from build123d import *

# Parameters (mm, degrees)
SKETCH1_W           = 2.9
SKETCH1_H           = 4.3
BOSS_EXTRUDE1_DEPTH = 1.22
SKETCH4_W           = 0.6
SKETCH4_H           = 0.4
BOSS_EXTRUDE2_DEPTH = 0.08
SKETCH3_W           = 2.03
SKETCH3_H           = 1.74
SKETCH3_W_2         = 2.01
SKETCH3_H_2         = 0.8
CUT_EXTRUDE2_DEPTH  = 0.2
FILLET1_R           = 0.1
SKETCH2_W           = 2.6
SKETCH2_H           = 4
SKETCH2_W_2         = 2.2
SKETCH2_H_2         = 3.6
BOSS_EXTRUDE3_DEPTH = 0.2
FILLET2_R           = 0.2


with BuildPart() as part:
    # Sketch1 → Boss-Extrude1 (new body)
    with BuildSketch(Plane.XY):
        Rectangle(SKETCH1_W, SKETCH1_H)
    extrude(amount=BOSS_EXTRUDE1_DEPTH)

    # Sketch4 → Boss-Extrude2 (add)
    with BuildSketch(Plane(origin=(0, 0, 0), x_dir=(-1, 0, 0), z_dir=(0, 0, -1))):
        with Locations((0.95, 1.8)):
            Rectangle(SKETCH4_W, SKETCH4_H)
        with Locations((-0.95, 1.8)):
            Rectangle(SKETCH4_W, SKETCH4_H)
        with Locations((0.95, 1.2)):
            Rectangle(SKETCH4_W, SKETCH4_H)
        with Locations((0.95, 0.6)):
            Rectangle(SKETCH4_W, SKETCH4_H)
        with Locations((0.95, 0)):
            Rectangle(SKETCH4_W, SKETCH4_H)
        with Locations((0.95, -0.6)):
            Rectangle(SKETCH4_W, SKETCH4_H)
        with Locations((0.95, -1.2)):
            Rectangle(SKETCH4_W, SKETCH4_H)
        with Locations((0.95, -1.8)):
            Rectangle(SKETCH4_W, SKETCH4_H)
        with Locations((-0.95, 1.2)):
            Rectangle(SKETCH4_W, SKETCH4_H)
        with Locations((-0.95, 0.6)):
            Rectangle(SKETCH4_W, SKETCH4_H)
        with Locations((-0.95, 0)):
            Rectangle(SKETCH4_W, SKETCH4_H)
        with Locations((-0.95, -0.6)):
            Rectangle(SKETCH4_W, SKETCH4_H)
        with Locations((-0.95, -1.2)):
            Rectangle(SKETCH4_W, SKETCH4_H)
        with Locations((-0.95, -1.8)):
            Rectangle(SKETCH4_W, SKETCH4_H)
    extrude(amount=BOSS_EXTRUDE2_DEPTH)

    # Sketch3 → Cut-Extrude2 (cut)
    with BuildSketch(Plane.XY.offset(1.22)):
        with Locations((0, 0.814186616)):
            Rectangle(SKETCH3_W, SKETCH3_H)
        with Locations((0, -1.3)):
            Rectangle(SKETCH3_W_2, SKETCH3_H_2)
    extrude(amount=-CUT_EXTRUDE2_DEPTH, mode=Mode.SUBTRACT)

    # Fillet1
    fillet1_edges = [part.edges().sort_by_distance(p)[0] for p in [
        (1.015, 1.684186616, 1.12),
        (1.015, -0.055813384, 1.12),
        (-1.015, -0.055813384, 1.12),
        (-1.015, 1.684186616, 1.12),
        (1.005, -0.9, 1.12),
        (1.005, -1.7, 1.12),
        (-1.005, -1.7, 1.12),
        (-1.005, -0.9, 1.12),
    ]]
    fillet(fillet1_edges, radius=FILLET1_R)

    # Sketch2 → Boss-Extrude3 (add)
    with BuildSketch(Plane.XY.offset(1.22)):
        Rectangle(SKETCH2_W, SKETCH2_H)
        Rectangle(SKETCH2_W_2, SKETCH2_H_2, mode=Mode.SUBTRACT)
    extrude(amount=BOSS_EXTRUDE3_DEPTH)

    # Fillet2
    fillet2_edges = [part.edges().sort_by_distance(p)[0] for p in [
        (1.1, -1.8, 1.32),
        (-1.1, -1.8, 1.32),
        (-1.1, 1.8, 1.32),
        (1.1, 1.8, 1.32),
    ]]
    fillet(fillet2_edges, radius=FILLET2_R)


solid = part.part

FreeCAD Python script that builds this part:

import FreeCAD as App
import Part
import Sketcher

V = App.Vector
Q = App.Units.Quantity


def edges_at(feature, points):
    """Names of the edges that pass closest to the given points."""
    edges = feature.Shape.Edges
    near = lambda p: min(range(len(edges)), key=lambda i: edges[i].distToShape(Part.Vertex(*p))[0])
    return sorted({f"Edge{near(p) + 1}" for p in points})

doc = App.newDocument("Part")
body = doc.addObject("PartDesign::Body", "Body")

sketch1 = body.newObject("Sketcher::SketchObject", "Sketch")
sketch1.AttachmentSupport = (doc.getObject("XY_Plane"), [""])
sketch1.MapMode = "FlatFace"
sketch1.addGeometry([
    Part.LineSegment(V(-1.45, 2.15, 0), V(-1.45, -2.15, 0)),
    Part.LineSegment(V(-1.45, -2.15, 0), V(1.45, -2.15, 0)),
    Part.LineSegment(V(1.45, -2.15, 0), V(1.45, 2.15, 0)),
    Part.LineSegment(V(1.45, 2.15, 0), V(-1.45, 2.15, 0)),
], False)
sketch1.addConstraint([
    Sketcher.Constraint("Coincident", 0, 2, 1, 1),
    Sketcher.Constraint("Coincident", 1, 2, 2, 1),
    Sketcher.Constraint("Coincident", 2, 2, 3, 1),
    Sketcher.Constraint("Coincident", 3, 2, 0, 1),
    Sketcher.Constraint("Vertical", 0),
    Sketcher.Constraint("Horizontal", 1),
    Sketcher.Constraint("Vertical", 2),
    Sketcher.Constraint("Horizontal", 3),
    Sketcher.Constraint("Symmetric", 0, 2, 2, 2, -1, 1),
    Sketcher.Constraint("DistanceX", 1, 1, 1, 2, Q("2.9 mm")),
    Sketcher.Constraint("DistanceY", 0, 2, 0, 1, Q("4.3 mm")),
])
pad1 = body.newObject("PartDesign::Pad", "Pad")
pad1.Profile = sketch1
pad1.Length = 1.22

sketch2 = body.newObject("Sketcher::SketchObject", "Sketch001")
sketch2.AttachmentSupport = (doc.getObject("XY_Plane"), [""])
sketch2.MapMode = "FlatFace"
sketch2.addGeometry([
    Part.LineSegment(V(-0.65, 2, 0), V(-0.65, 1.6, 0)),
    Part.LineSegment(V(-0.65, 1.6, 0), V(-1.25, 1.6, 0)),
    Part.LineSegment(V(-1.25, 1.6, 0), V(-1.25, 2, 0)),
    Part.LineSegment(V(-1.25, 2, 0), V(-0.65, 2, 0)),
    Part.LineSegment(V(1.25, 2, 0), V(1.25, 1.6, 0)),
    Part.LineSegment(V(1.25, 1.6, 0), V(0.65, 1.6, 0)),
    Part.LineSegment(V(0.65, 1.6, 0), V(0.65, 2, 0)),
    Part.LineSegment(V(0.65, 2, 0), V(1.25, 2, 0)),
    Part.LineSegment(V(-0.65, 1.4, 0), V(-0.65, 1, 0)),
    Part.LineSegment(V(-0.65, 1, 0), V(-1.25, 1, 0)),
    Part.LineSegment(V(-1.25, 1, 0), V(-1.25, 1.4, 0)),
    Part.LineSegment(V(-1.25, 1.4, 0), V(-0.65, 1.4, 0)),
    Part.LineSegment(V(-0.65, 0.8, 0), V(-0.65, 0.4, 0)),
    Part.LineSegment(V(-0.65, 0.4, 0), V(-1.25, 0.4, 0)),
    Part.LineSegment(V(-1.25, 0.4, 0), V(-1.25, 0.8, 0)),
    Part.LineSegment(V(-1.25, 0.8, 0), V(-0.65, 0.8, 0)),
    Part.LineSegment(V(-0.65, 0.2, 0), V(-0.65, -0.2, 0)),
    Part.LineSegment(V(-0.65, -0.2, 0), V(-1.25, -0.2, 0)),
    Part.LineSegment(V(-1.25, -0.2, 0), V(-1.25, 0.2, 0)),
    Part.LineSegment(V(-1.25, 0.2, 0), V(-0.65, 0.2, 0)),
    Part.LineSegment(V(-0.65, -0.4, 0), V(-0.65, -0.8, 0)),
    Part.LineSegment(V(-0.65, -0.8, 0), V(-1.25, -0.8, 0)),
    Part.LineSegment(V(-1.25, -0.8, 0), V(-1.25, -0.4, 0)),
    Part.LineSegment(V(-1.25, -0.4, 0), V(-0.65, -0.4, 0)),
    Part.LineSegment(V(-0.65, -1, 0), V(-0.65, -1.4, 0)),
    Part.LineSegment(V(-0.65, -1.4, 0), V(-1.25, -1.4, 0)),
    Part.LineSegment(V(-1.25, -1.4, 0), V(-1.25, -1, 0)),
    Part.LineSegment(V(-1.25, -1, 0), V(-0.65, -1, 0)),
    Part.LineSegment(V(-0.65, -1.6, 0), V(-0.65, -2, 0)),
    Part.LineSegment(V(-0.65, -2, 0), V(-1.25, -2, 0)),
    Part.LineSegment(V(-1.25, -2, 0), V(-1.25, -1.6, 0)),
    Part.LineSegment(V(-1.25, -1.6, 0), V(-0.65, -1.6, 0)),
    Part.LineSegment(V(1.25, 1.4, 0), V(1.25, 1, 0)),
    Part.LineSegment(V(1.25, 1, 0), V(0.65, 1, 0)),
    Part.LineSegment(V(0.65, 1, 0), V(0.65, 1.4, 0)),
    Part.LineSegment(V(0.65, 1.4, 0), V(1.25, 1.4, 0)),
    Part.LineSegment(V(1.25, 0.8, 0), V(1.25, 0.4, 0)),
    Part.LineSegment(V(1.25, 0.4, 0), V(0.65, 0.4, 0)),
    Part.LineSegment(V(0.65, 0.4, 0), V(0.65, 0.8, 0)),
    Part.LineSegment(V(0.65, 0.8, 0), V(1.25, 0.8, 0)),
    Part.LineSegment(V(1.25, 0.2, 0), V(1.25, -0.2, 0)),
    Part.LineSegment(V(1.25, -0.2, 0), V(0.65, -0.2, 0)),
    Part.LineSegment(V(0.65, -0.2, 0), V(0.65, 0.2, 0)),
    Part.LineSegment(V(0.65, 0.2, 0), V(1.25, 0.2, 0)),
    Part.LineSegment(V(1.25, -0.4, 0), V(1.25, -0.8, 0)),
    Part.LineSegment(V(1.25, -0.8, 0), V(0.65, -0.8, 0)),
    Part.LineSegment(V(0.65, -0.8, 0), V(0.65, -0.4, 0)),
    Part.LineSegment(V(0.65, -0.4, 0), V(1.25, -0.4, 0)),
    Part.LineSegment(V(1.25, -1, 0), V(1.25, -1.4, 0)),
    Part.LineSegment(V(1.25, -1.4, 0), V(0.65, -1.4, 0)),
    Part.LineSegment(V(0.65, -1.4, 0), V(0.65, -1, 0)),
    Part.LineSegment(V(0.65, -1, 0), V(1.25, -1, 0)),
    Part.LineSegment(V(1.25, -1.6, 0), V(1.25, -2, 0)),
    Part.LineSegment(V(1.25, -2, 0), V(0.65, -2, 0)),
    Part.LineSegment(V(0.65, -2, 0), V(0.65, -1.6, 0)),
    Part.LineSegment(V(0.65, -1.6, 0), V(1.25, -1.6, 0)),
], False)
sketch2.addConstraint([
    Sketcher.Constraint("Coincident", 0, 2, 1, 1),
    Sketcher.Constraint("Coincident", 1, 2, 2, 1),
    Sketcher.Constraint("Coincident", 2, 2, 3, 1),
    Sketcher.Constraint("Coincident", 3, 2, 0, 1),
    Sketcher.Constraint("Coincident", 4, 2, 5, 1),
    Sketcher.Constraint("Coincident", 5, 2, 6, 1),
    Sketcher.Constraint("Coincident", 6, 2, 7, 1),
    Sketcher.Constraint("Coincident", 7, 2, 4, 1),
    Sketcher.Constraint("Coincident", 8, 2, 9, 1),
    Sketcher.Constraint("Coincident", 9, 2, 10, 1),
    Sketcher.Constraint("Coincident", 10, 2, 11, 1),
    Sketcher.Constraint("Coincident", 11, 2, 8, 1),
    Sketcher.Constraint("Coincident", 12, 2, 13, 1),
    Sketcher.Constraint("Coincident", 13, 2, 14, 1),
    Sketcher.Constraint("Coincident", 14, 2, 15, 1),
    Sketcher.Constraint("Coincident", 15, 2, 12, 1),
    Sketcher.Constraint("Coincident", 16, 2, 17, 1),
    Sketcher.Constraint("Coincident", 17, 2, 18, 1),
    Sketcher.Constraint("Coincident", 18, 2, 19, 1),
    Sketcher.Constraint("Coincident", 19, 2, 16, 1),
    Sketcher.Constraint("Coincident", 20, 2, 21, 1),
    Sketcher.Constraint("Coincident", 21, 2, 22, 1),
    Sketcher.Constraint("Coincident", 22, 2, 23, 1),
    Sketcher.Constraint("Coincident", 23, 2, 20, 1),
    Sketcher.Constraint("Coincident", 24, 2, 25, 1),
    Sketcher.Constraint("Coincident", 25, 2, 26, 1),
    Sketcher.Constraint("Coincident", 26, 2, 27, 1),
    Sketcher.Constraint("Coincident", 27, 2, 24, 1),
    Sketcher.Constraint("Coincident", 28, 2, 29, 1),
    Sketcher.Constraint("Coincident", 29, 2, 30, 1),
    Sketcher.Constraint("Coincident", 30, 2, 31, 1),
    Sketcher.Constraint("Coincident", 31, 2, 28, 1),
    Sketcher.Constraint("Coincident", 32, 2, 33, 1),
    Sketcher.Constraint("Coincident", 33, 2, 34, 1),
    Sketcher.Constraint("Coincident", 34, 2, 35, 1),
    Sketcher.Constraint("Coincident", 35, 2, 32, 1),
    Sketcher.Constraint("Coincident", 36, 2, 37, 1),
    Sketcher.Constraint("Coincident", 37, 2, 38, 1),
    Sketcher.Constraint("Coincident", 38, 2, 39, 1),
    Sketcher.Constraint("Coincident", 39, 2, 36, 1),
    Sketcher.Constraint("Coincident", 40, 2, 41, 1),
    Sketcher.Constraint("Coincident", 41, 2, 42, 1),
    Sketcher.Constraint("Coincident", 42, 2, 43, 1),
    Sketcher.Constraint("Coincident", 43, 2, 40, 1),
    Sketcher.Constraint("Coincident", 44, 2, 45, 1),
    Sketcher.Constraint("Coincident", 45, 2, 46, 1),
    Sketcher.Constraint("Coincident", 46, 2, 47, 1),
    Sketcher.Constraint("Coincident", 47, 2, 44, 1),
    Sketcher.Constraint("Coincident", 48, 2, 49, 1),
    Sketcher.Constraint("Coincident", 49, 2, 50, 1),
    Sketcher.Constraint("Coincident", 50, 2, 51, 1),
    Sketcher.Constraint("Coincident", 51, 2, 48, 1),
    Sketcher.Constraint("Coincident", 52, 2, 53, 1),
    Sketcher.Constraint("Coincident", 53, 2, 54, 1),
    Sketcher.Constraint("Coincident", 54, 2, 55, 1),
    Sketcher.Constraint("Coincident", 55, 2, 52, 1),
    Sketcher.Constraint("Vertical", 0),
    Sketcher.Constraint("Horizontal", 1),
    Sketcher.Constraint("Vertical", 2),
    Sketcher.Constraint("Horizontal", 3),
    Sketcher.Constraint("Vertical", 4),
    Sketcher.Constraint("Horizontal", 5),
    Sketcher.Constraint("Vertical", 6),
    Sketcher.Constraint("Horizontal", 7),
    Sketcher.Constraint("Vertical", 8),
    Sketcher.Constraint("Horizontal", 9),
    Sketcher.Constraint("Vertical", 10),
    Sketcher.Constraint("Horizontal", 11),
    Sketcher.Constraint("Vertical", 12),
    Sketcher.Constraint("Horizontal", 13),
    Sketcher.Constraint("Vertical", 14),
    Sketcher.Constraint("Horizontal", 15),
    Sketcher.Constraint("Vertical", 16),
    Sketcher.Constraint("Horizontal", 17),
    Sketcher.Constraint("Vertical", 18),
    Sketcher.Constraint("Horizontal", 19),
    Sketcher.Constraint("Vertical", 20),
    Sketcher.Constraint("Horizontal", 21),
    Sketcher.Constraint("Vertical", 22),
    Sketcher.Constraint("Horizontal", 23),
    Sketcher.Constraint("Vertical", 24),
    Sketcher.Constraint("Horizontal", 25),
    Sketcher.Constraint("Vertical", 26),
    Sketcher.Constraint("Horizontal", 27),
    Sketcher.Constraint("Vertical", 28),
    Sketcher.Constraint("Horizontal", 29),
    Sketcher.Constraint("Vertical", 30),
    Sketcher.Constraint("Horizontal", 31),
    Sketcher.Constraint("Vertical", 32),
    Sketcher.Constraint("Horizontal", 33),
    Sketcher.Constraint("Vertical", 34),
    Sketcher.Constraint("Horizontal", 35),
    Sketcher.Constraint("Vertical", 36),
    Sketcher.Constraint("Horizontal", 37),
    Sketcher.Constraint("Vertical", 38),
    Sketcher.Constraint("Horizontal", 39),
    Sketcher.Constraint("Vertical", 40),
    Sketcher.Constraint("Horizontal", 41),
    Sketcher.Constraint("Vertical", 42),
    Sketcher.Constraint("Horizontal", 43),
    Sketcher.Constraint("Vertical", 44),
    Sketcher.Constraint("Horizontal", 45),
    Sketcher.Constraint("Vertical", 46),
    Sketcher.Constraint("Horizontal", 47),
    Sketcher.Constraint("Vertical", 48),
    Sketcher.Constraint("Horizontal", 49),
    Sketcher.Constraint("Vertical", 50),
    Sketcher.Constraint("Horizontal", 51),
    Sketcher.Constraint("Vertical", 52),
    Sketcher.Constraint("Horizontal", 53),
    Sketcher.Constraint("Vertical", 54),
    Sketcher.Constraint("Horizontal", 55),
    Sketcher.Constraint("Symmetric", 6, 2, 28, 2, -1, 1),
    Sketcher.Constraint("Symmetric", 4, 2, 30, 2, -1, 1),
    Sketcher.Constraint("Symmetric", 26, 2, 32, 2, -1, 1),
    Sketcher.Constraint("Symmetric", 24, 2, 34, 2, -1, 1),
    Sketcher.Constraint("Symmetric", 22, 2, 36, 2, -1, 1),
    Sketcher.Constraint("Symmetric", 20, 2, 38, 2, -1, 1),
    Sketcher.Constraint("Symmetric", 18, 2, 40, 2, -1, 1),
    Sketcher.Constraint("Symmetric", 16, 2, 42, 2, -1, 1),
    Sketcher.Constraint("Symmetric", 14, 2, 44, 2, -1, 1),
    Sketcher.Constraint("Symmetric", 12, 2, 46, 2, -1, 1),
    Sketcher.Constraint("Symmetric", 10, 2, 48, 2, -1, 1),
    Sketcher.Constraint("Symmetric", 8, 2, 50, 2, -1, 1),
    Sketcher.Constraint("Symmetric", 2, 2, 52, 2, -1, 1),
    Sketcher.Constraint("Symmetric", 0, 2, 54, 2, -1, 1),
    Sketcher.Constraint("Symmetric", 1, 2, 4, 2, -2),
    Sketcher.Constraint("Symmetric", 3, 2, 6, 2, -2),
    Sketcher.Constraint("Symmetric", 9, 2, 32, 2, -2),
    Sketcher.Constraint("Symmetric", 11, 2, 34, 2, -2),
    Sketcher.Constraint("Symmetric", 13, 2, 36, 2, -2),
    Sketcher.Constraint("Symmetric", 15, 2, 38, 2, -2),
    Sketcher.Constraint("Horizontal", 17, 2, 40, 2),
    Sketcher.Constraint("Vertical", 3, 2, 8, 2),
    Sketcher.Constraint("Vertical", 2, 2, 9, 2),
    Sketcher.Constraint("Vertical", 11, 2, 12, 2),
    Sketcher.Constraint("Vertical", 10, 2, 13, 2),
    Sketcher.Constraint("Vertical", 15, 2, 16, 2),
    Sketcher.Constraint("Vertical", 14, 2, 17, 2),
    Sketcher.Constraint("Equal", 6, 8),
    Sketcher.Constraint("Equal", 10, 12),
    Sketcher.Constraint("Equal", 14, 16),
    Sketcher.Constraint("DistanceX", 1, 2, 1, 1, Q("0.6 mm")),
    Sketcher.Constraint("DistanceY", 0, 2, 0, 1, Q("0.4 mm")),
    Sketcher.Constraint("DistanceY", -1, 1, 2, 2, Q("2 mm")),
    Sketcher.Constraint("DistanceY", -1, 1, 8, 2, Q("1 mm")),
    Sketcher.Constraint("DistanceY", 12, 2, 11, 2, Q("1 mm")),
    Sketcher.Constraint("DistanceX", 0, 2, 4, 2, Q("1.9 mm")),
])
pad2 = body.newObject("PartDesign::Pad", "Pad001")
pad2.Profile = sketch2
pad2.Length = 0.08
pad2.Reversed = True

sketch3 = body.newObject("Sketcher::SketchObject", "Sketch002")
sketch3.AttachmentSupport = (doc.getObject("XY_Plane"), [""])
sketch3.MapMode = "FlatFace"
sketch3.AttachmentOffset = App.Placement(V(0, 0, 1.22), App.Rotation())
sketch3.addGeometry([
    Part.LineSegment(V(-1.015, 1.684187, 0), V(-1.015, -0.055813, 0)),
    Part.LineSegment(V(-1.015, -0.055813, 0), V(1.015, -0.055813, 0)),
    Part.LineSegment(V(1.015, -0.055813, 0), V(1.015, 1.684187, 0)),
    Part.LineSegment(V(1.015, 1.684187, 0), V(-1.015, 1.684187, 0)),
    Part.LineSegment(V(-1.005, -0.9, 0), V(-1.005, -1.7, 0)),
    Part.LineSegment(V(-1.005, -1.7, 0), V(1.005, -1.7, 0)),
    Part.LineSegment(V(1.005, -1.7, 0), V(1.005, -0.9, 0)),
    Part.LineSegment(V(1.005, -0.9, 0), V(-1.005, -0.9, 0)),
], False)
sketch3.addConstraint([
    Sketcher.Constraint("Coincident", 0, 2, 1, 1),
    Sketcher.Constraint("Coincident", 1, 2, 2, 1),
    Sketcher.Constraint("Coincident", 2, 2, 3, 1),
    Sketcher.Constraint("Coincident", 3, 2, 0, 1),
    Sketcher.Constraint("Coincident", 4, 2, 5, 1),
    Sketcher.Constraint("Coincident", 5, 2, 6, 1),
    Sketcher.Constraint("Coincident", 6, 2, 7, 1),
    Sketcher.Constraint("Coincident", 7, 2, 4, 1),
    Sketcher.Constraint("Vertical", 0),
    Sketcher.Constraint("Horizontal", 1),
    Sketcher.Constraint("Vertical", 2),
    Sketcher.Constraint("Horizontal", 3),
    Sketcher.Constraint("Vertical", 4),
    Sketcher.Constraint("Horizontal", 5),
    Sketcher.Constraint("Vertical", 6),
    Sketcher.Constraint("Horizontal", 7),
    Sketcher.Constraint("DistanceY", 4, 2, 4, 1, Q("0.8 mm")),
    Sketcher.Constraint("DistanceX", 1, 1, 1, 2, Q("2.03 mm")),
    Sketcher.Constraint("DistanceX", 5, 1, 5, 2, Q("2.01 mm")),
    Sketcher.Constraint("DistanceY", 0, 2, 0, 1, Q("1.74 mm")),
    Sketcher.Constraint("DistanceY", 4, 2, -1, 1, Q("1.7 mm")),
    Sketcher.Constraint("DistanceX", 0, 2, 4, 2, Q("0.01 mm")),
    Sketcher.Constraint("DistanceX", 0, 2, -1, 1, Q("1.015 mm")),
    Sketcher.Constraint("DistanceY", 0, 2, -1, 1, Q("0.055813 mm")),
])
pocket1 = body.newObject("PartDesign::Pocket", "Pocket")
pocket1.Profile = sketch3
pocket1.Length = 0.2
doc.recompute()

fillet = body.newObject("PartDesign::Fillet", "Fillet")
fillet.Base = (pocket1, edges_at(pocket1, [
    (1.015, 1.684, 1.12),
    (1.015, -0.056, 1.12),
    (-1.015, -0.056, 1.12),
    (-1.015, 1.684, 1.12),
    (1.005, -0.9, 1.12),
    (1.005, -1.7, 1.12),
    (-1.005, -1.7, 1.12),
    (-1.005, -0.9, 1.12),
]))
fillet.Radius = 0.1

sketch4 = body.newObject("Sketcher::SketchObject", "Sketch003")
sketch4.AttachmentSupport = (doc.getObject("XY_Plane"), [""])
sketch4.MapMode = "FlatFace"
sketch4.AttachmentOffset = App.Placement(V(0, 0, 1.22), App.Rotation())
sketch4.addGeometry([
    Part.LineSegment(V(-1.3, 2, 0), V(-1.3, -2, 0)),
    Part.LineSegment(V(-1.3, -2, 0), V(1.3, -2, 0)),
    Part.LineSegment(V(1.3, -2, 0), V(1.3, 2, 0)),
    Part.LineSegment(V(1.3, 2, 0), V(-1.3, 2, 0)),
    Part.LineSegment(V(1.1, -1.8, 0), V(-1.1, -1.8, 0)),
    Part.LineSegment(V(-1.1, -1.8, 0), V(-1.1, 1.8, 0)),
    Part.LineSegment(V(-1.1, 1.8, 0), V(1.1, 1.8, 0)),
    Part.LineSegment(V(1.1, 1.8, 0), V(1.1, -1.8, 0)),
], False)
sketch4.addConstraint([
    Sketcher.Constraint("Coincident", 0, 2, 1, 1),
    Sketcher.Constraint("Coincident", 1, 2, 2, 1),
    Sketcher.Constraint("Coincident", 2, 2, 3, 1),
    Sketcher.Constraint("Coincident", 3, 2, 0, 1),
    Sketcher.Constraint("Coincident", 4, 2, 5, 1),
    Sketcher.Constraint("Coincident", 5, 2, 6, 1),
    Sketcher.Constraint("Coincident", 6, 2, 7, 1),
    Sketcher.Constraint("Coincident", 7, 2, 4, 1),
    Sketcher.Constraint("Vertical", 0),
    Sketcher.Constraint("Horizontal", 1),
    Sketcher.Constraint("Vertical", 2),
    Sketcher.Constraint("Horizontal", 3),
    Sketcher.Constraint("Horizontal", 4),
    Sketcher.Constraint("Vertical", 5),
    Sketcher.Constraint("Horizontal", 6),
    Sketcher.Constraint("Vertical", 7),
    Sketcher.Constraint("Symmetric", 0, 2, 2, 2, -1, 1),
    Sketcher.Constraint("Symmetric", 4, 2, 6, 2, -1, 1),
    Sketcher.Constraint("DistanceY", 0, 2, 0, 1, Q("4 mm")),
    Sketcher.Constraint("DistanceX", 1, 1, 1, 2, Q("2.6 mm")),
    Sketcher.Constraint("DistanceX", 4, 2, 4, 1, Q("2.2 mm")),
    Sketcher.Constraint("DistanceY", 5, 1, 5, 2, Q("3.6 mm")),
])
pad3 = body.newObject("PartDesign::Pad", "Pad002")
pad3.Profile = sketch4
pad3.Length = 0.2
doc.recompute()

fillet2 = body.newObject("PartDesign::Fillet", "Fillet001")
fillet2.Base = (pad3, edges_at(pad3, [
    (1.1, -1.8, 1.32),
    (-1.1, -1.8, 1.32),
    (-1.1, 1.8, 1.32),
    (1.1, 1.8, 1.32),
]))
fillet2.Radius = 0.2

doc.recompute()
